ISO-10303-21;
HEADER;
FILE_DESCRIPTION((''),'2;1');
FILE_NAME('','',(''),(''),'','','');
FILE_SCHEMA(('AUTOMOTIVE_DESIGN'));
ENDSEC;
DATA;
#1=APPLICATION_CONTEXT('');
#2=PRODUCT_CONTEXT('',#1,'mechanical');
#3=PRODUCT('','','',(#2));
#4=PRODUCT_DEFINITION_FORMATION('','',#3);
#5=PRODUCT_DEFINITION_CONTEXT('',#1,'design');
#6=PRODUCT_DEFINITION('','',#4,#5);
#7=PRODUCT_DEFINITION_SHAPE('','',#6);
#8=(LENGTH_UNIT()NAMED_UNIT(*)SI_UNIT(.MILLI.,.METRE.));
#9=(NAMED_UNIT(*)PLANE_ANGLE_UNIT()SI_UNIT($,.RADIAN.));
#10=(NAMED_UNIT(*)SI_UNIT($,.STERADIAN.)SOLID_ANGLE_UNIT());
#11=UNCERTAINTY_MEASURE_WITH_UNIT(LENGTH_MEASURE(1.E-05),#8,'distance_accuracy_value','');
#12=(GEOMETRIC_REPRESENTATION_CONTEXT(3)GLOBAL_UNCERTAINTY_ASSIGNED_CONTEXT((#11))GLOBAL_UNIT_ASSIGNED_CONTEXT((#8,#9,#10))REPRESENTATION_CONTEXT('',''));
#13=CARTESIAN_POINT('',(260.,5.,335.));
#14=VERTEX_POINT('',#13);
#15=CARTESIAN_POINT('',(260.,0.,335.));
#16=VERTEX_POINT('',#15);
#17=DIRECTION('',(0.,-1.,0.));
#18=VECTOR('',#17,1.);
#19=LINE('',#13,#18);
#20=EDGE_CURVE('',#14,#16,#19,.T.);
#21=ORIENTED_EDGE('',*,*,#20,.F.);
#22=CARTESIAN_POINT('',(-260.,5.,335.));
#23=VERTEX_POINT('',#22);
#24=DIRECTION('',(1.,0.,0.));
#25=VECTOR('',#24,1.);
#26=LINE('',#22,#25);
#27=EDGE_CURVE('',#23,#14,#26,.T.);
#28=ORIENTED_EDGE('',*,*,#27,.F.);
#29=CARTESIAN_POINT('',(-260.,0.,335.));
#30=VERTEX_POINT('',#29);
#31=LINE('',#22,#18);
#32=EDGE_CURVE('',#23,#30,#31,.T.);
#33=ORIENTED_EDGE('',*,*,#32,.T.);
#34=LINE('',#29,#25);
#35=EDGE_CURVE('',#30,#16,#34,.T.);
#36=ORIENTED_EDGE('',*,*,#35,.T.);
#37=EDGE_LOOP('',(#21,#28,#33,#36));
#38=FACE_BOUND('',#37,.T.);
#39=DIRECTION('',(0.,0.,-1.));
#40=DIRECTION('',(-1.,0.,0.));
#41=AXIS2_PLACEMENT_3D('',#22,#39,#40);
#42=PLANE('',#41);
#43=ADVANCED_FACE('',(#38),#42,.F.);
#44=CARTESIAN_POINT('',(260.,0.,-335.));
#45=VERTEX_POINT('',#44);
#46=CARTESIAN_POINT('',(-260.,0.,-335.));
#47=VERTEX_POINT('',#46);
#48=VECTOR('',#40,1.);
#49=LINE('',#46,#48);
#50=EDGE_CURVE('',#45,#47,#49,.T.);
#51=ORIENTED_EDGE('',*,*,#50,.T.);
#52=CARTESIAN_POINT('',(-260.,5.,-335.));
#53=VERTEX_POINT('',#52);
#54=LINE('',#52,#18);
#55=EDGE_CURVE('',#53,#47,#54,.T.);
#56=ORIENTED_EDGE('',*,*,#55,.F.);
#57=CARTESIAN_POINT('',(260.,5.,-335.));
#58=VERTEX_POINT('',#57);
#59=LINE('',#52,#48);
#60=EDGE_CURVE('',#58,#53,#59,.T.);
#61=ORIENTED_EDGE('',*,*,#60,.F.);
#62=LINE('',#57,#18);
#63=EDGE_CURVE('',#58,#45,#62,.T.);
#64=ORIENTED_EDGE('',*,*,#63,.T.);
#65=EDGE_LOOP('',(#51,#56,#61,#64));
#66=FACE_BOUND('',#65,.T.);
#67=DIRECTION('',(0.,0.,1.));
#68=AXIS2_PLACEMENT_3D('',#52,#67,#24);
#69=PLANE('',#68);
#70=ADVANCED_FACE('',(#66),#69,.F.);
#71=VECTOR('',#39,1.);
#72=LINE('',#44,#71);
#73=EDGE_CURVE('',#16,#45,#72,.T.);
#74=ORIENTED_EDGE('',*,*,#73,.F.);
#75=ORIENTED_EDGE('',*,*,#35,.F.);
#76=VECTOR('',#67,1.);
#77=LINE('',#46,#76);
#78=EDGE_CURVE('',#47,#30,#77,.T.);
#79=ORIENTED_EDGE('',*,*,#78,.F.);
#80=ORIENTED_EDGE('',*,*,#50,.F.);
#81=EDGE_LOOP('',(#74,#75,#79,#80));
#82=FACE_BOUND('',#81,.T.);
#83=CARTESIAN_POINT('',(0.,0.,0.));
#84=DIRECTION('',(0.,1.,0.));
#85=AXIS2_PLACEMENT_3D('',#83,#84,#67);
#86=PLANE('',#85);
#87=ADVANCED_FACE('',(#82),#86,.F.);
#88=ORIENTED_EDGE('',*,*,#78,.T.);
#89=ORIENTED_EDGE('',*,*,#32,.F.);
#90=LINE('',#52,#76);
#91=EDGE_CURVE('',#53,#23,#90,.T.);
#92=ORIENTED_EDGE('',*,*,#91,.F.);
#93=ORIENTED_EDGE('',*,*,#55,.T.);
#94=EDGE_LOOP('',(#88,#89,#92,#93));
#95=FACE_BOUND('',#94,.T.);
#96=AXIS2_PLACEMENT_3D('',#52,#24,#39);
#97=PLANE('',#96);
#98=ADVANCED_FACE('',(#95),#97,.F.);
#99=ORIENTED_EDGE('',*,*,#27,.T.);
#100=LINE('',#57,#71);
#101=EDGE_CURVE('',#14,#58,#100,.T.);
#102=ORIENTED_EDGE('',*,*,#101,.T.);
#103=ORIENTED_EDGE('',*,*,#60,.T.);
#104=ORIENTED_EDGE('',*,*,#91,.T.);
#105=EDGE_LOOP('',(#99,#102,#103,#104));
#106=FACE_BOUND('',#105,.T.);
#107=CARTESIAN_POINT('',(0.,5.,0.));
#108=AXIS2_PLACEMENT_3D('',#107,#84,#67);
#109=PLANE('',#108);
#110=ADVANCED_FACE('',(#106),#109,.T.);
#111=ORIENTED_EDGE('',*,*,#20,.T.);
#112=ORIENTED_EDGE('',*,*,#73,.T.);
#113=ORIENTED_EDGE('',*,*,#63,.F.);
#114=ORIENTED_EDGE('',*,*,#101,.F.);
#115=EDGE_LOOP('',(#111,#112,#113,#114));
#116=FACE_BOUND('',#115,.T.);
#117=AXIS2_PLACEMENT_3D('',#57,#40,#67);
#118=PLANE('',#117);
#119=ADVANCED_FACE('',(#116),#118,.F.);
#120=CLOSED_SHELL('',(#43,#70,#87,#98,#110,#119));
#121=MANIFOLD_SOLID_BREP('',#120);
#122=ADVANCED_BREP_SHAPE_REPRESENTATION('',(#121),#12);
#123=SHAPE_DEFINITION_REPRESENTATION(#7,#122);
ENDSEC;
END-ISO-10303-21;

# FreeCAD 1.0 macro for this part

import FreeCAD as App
import Part
import Sketcher
Q = App.Units.Quantity


def add_polygon(sketch, points):
    """Adds a closed chain of lines whose ends are joined by coincident constraints."""
    first, n = sketch.GeometryCount, len(points)
    for a, b in zip(points, points[1:] + points[:1]):
        sketch.addGeometry(Part.LineSegment(App.Vector(*a, 0), App.Vector(*b, 0)), False)
    for i in range(n):
        sketch.addConstraint(Sketcher.Constraint("Coincident", first + i, 2, first + (i + 1) % n, 1))

doc = App.newDocument("Part")
body = doc.addObject("PartDesign::Body", "Body")

sketch1 = body.newObject("Sketcher::SketchObject", "Sketch")
sketch1.AttachmentSupport = (doc.getObject("XZ_Plane"), [""])
sketch1.MapMode = "FlatFace"
add_polygon(sketch1, [(-260, -335), (-260, 335), (260, 335), (260, -335)])
sketch1.addConstraint([
    Sketcher.Constraint("Vertical", 0),
    Sketcher.Constraint("Horizontal", 1),
    Sketcher.Constraint("Vertical", 2),
    Sketcher.Constraint("Horizontal", 3),
    Sketcher.Constraint("Symmetric", 0, 2, 2, 2, -1, 1),
    Sketcher.Constraint("DistanceX", 1, 1, 1, 2, Q("520 mm")),
    Sketcher.Constraint("DistanceY", 0, 1, 0, 2, Q("670 mm")),
])
pad1 = body.newObject("PartDesign::Pad", "Pad")
pad1.Profile = sketch1
pad1.Length = 5
pad1.Reversed = True

doc.recompute()
